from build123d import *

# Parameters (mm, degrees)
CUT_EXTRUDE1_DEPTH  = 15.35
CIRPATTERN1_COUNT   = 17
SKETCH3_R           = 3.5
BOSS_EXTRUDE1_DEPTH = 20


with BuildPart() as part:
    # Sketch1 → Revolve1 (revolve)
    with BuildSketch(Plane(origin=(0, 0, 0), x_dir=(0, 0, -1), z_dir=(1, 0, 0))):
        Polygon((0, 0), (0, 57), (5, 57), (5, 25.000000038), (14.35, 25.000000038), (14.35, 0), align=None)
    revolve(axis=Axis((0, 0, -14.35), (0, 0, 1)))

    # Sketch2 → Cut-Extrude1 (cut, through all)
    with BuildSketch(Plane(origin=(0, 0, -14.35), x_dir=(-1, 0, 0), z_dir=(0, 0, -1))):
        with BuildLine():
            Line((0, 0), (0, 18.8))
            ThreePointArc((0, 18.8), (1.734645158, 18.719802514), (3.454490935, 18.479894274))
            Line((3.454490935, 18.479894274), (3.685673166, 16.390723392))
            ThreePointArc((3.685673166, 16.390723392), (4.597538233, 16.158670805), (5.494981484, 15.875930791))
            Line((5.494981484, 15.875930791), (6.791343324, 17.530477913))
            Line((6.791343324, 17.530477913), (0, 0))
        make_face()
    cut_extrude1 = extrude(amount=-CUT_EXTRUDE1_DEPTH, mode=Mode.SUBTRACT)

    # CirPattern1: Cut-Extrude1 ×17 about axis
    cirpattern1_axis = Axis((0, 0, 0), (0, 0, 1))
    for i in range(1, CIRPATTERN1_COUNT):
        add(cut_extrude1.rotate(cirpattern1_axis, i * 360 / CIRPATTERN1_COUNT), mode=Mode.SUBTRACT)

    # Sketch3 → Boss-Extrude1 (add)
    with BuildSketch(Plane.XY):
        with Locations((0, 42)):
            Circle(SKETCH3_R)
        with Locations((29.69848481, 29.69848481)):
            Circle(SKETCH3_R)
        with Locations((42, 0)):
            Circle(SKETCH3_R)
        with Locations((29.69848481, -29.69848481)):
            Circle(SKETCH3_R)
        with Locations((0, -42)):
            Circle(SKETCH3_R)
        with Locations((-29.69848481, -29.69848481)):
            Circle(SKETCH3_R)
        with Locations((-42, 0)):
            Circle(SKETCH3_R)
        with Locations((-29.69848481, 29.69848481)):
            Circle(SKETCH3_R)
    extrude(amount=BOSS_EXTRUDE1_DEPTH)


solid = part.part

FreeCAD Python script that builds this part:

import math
import FreeCAD as App
import Part
import Sketcher
from FreeCAD import Vector


def add_polygon(sketch, points):
    """Adds a closed chain of lines whose ends are joined by coincident constraints."""
    first, n = sketch.GeometryCount, len(points)
    for a, b in zip(points, points[1:] + points[:1]):
        sketch.addGeometry(Part.LineSegment(App.Vector(*a, 0), App.Vector(*b, 0)), False)
    for i in range(n):
        sketch.addConstraint(Sketcher.Constraint("Coincident", first + i, 2, first + (i + 1) % n, 1))

doc = App.newDocument("Part")
body = doc.addObject("PartDesign::Body", "Body")

# Sketch on YZ plane
sketch1 = doc.addObject("Sketcher::SketchObject", "Sketch")
body.addObject(sketch1)
sketch1.AttachmentSupport = (doc.YZ_Plane, [""])
sketch1.MapMode = "FlatFace"
add_polygon(sketch1, [(57, 0), (0, 0), (0, -14.35), (25, -14.35), (25, -5), (57, -5)])  # lines 0-5
sketch1.addConstraint(Sketcher.Constraint("Horizontal", 0))
sketch1.addConstraint(Sketcher.Constraint("Vertical", 1))
sketch1.addConstraint(Sketcher.Constraint("Horizontal", 2))
sketch1.addConstraint(Sketcher.Constraint("Vertical", 3))
sketch1.addConstraint(Sketcher.Constraint("Horizontal", 4))
sketch1.addConstraint(Sketcher.Constraint("Vertical", 5))
sketch1.addConstraint(Sketcher.Constraint("Coincident", 0, 2, -1, 1))
sketch1.addConstraint(Sketcher.Constraint("DistanceX", 0, 2, 0, 1, 57.0))
sketch1.addConstraint(Sketcher.Constraint("DistanceX", 2, 1, 2, 2, 25.0))
sketch1.addConstraint(Sketcher.Constraint("DistanceY", 5, 1, 5, 2, 5.0))
sketch1.addConstraint(Sketcher.Constraint("DistanceY", 1, 2, 1, 1, 14.35))
revolution = doc.addObject("PartDesign::Revolution", "Revolution")
body.addObject(revolution)
revolution.Profile = sketch1
revolution.ReferenceAxis = (sketch1, ["V_Axis"])
revolution.Angle = 360

# Sketch on XY plane
sketch2 = doc.addObject("Sketcher::SketchObject", "Sketch001")
body.addObject(sketch2)
sketch2.AttachmentSupport = (doc.XY_Plane, [""])
sketch2.MapMode = "FlatFace"
sketch2.AttachmentOffset = App.Placement(Vector(0, 0, -14.35), App.Rotation())
sketch2.addGeometry(Part.LineSegment(Vector(0, 18.8, 0), Vector(0, 0, 0)), False)
sketch2.addGeometry(Part.LineSegment(Vector(0, 0, 0), Vector(-6.791343, 17.530478, 0)), False)
sketch2.addGeometry(Part.LineSegment(Vector(-6.791343, 17.530478, 0), Vector(-5.494981, 15.875931, 0)), False)
sketch2.addGeometry(Part.ArcOfCircle(Part.Circle(Vector(0, 0, 0), Vector(0, 0, 1), 16.8), math.radians(102.672932), math.radians(109.091774)), False)
sketch2.addGeometry(Part.LineSegment(Vector(-3.685673, 16.390723, 0), Vector(-3.454491, 18.479894, 0)), False)
sketch2.addGeometry(Part.ArcOfCircle(Part.Circle(Vector(0, 0, 0), Vector(0, 0, 1), 18.8), math.radians(90), math.radians(100.588235)), False)
sketch2.addConstraint(Sketcher.Constraint("Coincident", 0, 2, 1, 1))
sketch2.addConstraint(Sketcher.Constraint("Coincident", 1, 2, 2, 1))
sketch2.addConstraint(Sketcher.Constraint("Coincident", 2, 2, 3, 2))
sketch2.addConstraint(Sketcher.Constraint("Coincident", 3, 1, 4, 1))
sketch2.addConstraint(Sketcher.Constraint("Coincident", 4, 2, 5, 2))
sketch2.addConstraint(Sketcher.Constraint("Coincident", 5, 1, 0, 1))
sketch2.addConstraint(Sketcher.Constraint("Vertical", 0))
sketch2.addConstraint(Sketcher.Constraint("Coincident", 3, 3, -1, 1))
sketch2.addConstraint(Sketcher.Constraint("Coincident", 5, 3, -1, 1))
sketch2.addConstraint(Sketcher.Constraint("Coincident", 0, 2, -1, 1))
sketch2.addConstraint(Sketcher.Constraint("Equal", 2, 4))
sketch2.addConstraint(Sketcher.Constraint("Radius", 3, 16.8))
sketch2.addConstraint(Sketcher.Constraint("Radius", 5, 18.8))
sketch2.addConstraint(Sketcher.Constraint("Distance", 1, 18.8))
sketch2.addConstraint(Sketcher.Constraint("DistanceX", 2, 2, -1, 1, 5.494981))
sketch2.addConstraint(Sketcher.Constraint("DistanceX", 4, 2, -1, 1, 3.454491))
sketch2.addConstraint(Sketcher.Constraint("DistanceY", 3, 3, 1, 2, 17.530478))
pocket1 = doc.addObject("PartDesign::Pocket", "Pocket")
body.addObject(pocket1)
pocket1.Profile = sketch2
pocket1.Type = "ThroughAll"
pocket1.Reversed = True
doc.recompute()

polarpattern = doc.addObject("PartDesign::PolarPattern", "PolarPattern")
body.addObject(polarpattern)
polarpattern.Originals = [pocket1]
polarpattern.Axis = (doc.Z_Axis, [""])
polarpattern.Angle = 360
polarpattern.Occurrences = 17
body.Tip = polarpattern

# Sketch on XY plane
sketch3 = doc.addObject("Sketcher::SketchObject", "Sketch002")
body.addObject(sketch3)
sketch3.AttachmentSupport = (doc.XY_Plane, [""])
sketch3.MapMode = "FlatFace"
sketch3.addGeometry(Part.Circle(Vector(0, 42, 0), Vector(0, 0, 1), 3.5), False)
sketch3.addGeometry(Part.Circle(Vector(29.698485, 29.698485, 0), Vector(0, 0, 1), 3.5), False)
sketch3.addGeometry(Part.Circle(Vector(42, 0, 0), Vector(0, 0, 1), 3.5), False)
sketch3.addGeometry(Part.Circle(Vector(29.698485, -29.698485, 0), Vector(0, 0, 1), 3.5), False)
sketch3.addGeometry(Part.Circle(Vector(0, -42, 0), Vector(0, 0, 1), 3.5), False)
sketch3.addGeometry(Part.Circle(Vector(-29.698485, -29.698485, 0), Vector(0, 0, 1), 3.5), False)
sketch3.addGeometry(Part.Circle(Vector(-42, 0, 0), Vector(0, 0, 1), 3.5), False)
sketch3.addGeometry(Part.Circle(Vector(-29.698485, 29.698485, 0), Vector(0, 0, 1), 3.5), False)
sketch3.addConstraint(Sketcher.Constraint("Equal", 0, 1))
sketch3.addConstraint(Sketcher.Constraint("Equal", 1, 2))
sketch3.addConstraint(Sketcher.Constraint("Equal", 2, 3))
sketch3.addConstraint(Sketcher.Constraint("Equal", 3, 4))
sketch3.addConstraint(Sketcher.Constraint("Equal", 4, 5))
sketch3.addConstraint(Sketcher.Constraint("Equal", 5, 6))
sketch3.addConstraint(Sketcher.Constraint("Equal", 6, 7))
sketch3.addConstraint(Sketcher.Constraint("Symmetric", 0, 3, 4, 3, -1, 1))
sketch3.addConstraint(Sketcher.Constraint("Symmetric", 1, 3, 5, 3, -1, 1))
sketch3.addConstraint(Sketcher.Constraint("Symmetric", 2, 3, 6, 3, -1, 1))
sketch3.addConstraint(Sketcher.Constraint("Symmetric", 3, 3, 7, 3, -1, 1))
sketch3.addConstraint(Sketcher.Constraint("Symmetric", 3, 3, 5, 3, -2))
sketch3.addConstraint(Sketcher.Constraint("PointOnObject", 0, 3, -2))
sketch3.addConstraint(Sketcher.Constraint("PointOnObject", 2, 3, -1))
sketch3.addConstraint(Sketcher.Constraint("Diameter", 0, 7.0))
sketch3.addConstraint(Sketcher.Constraint("DistanceY", -1, 1, 0, 3, 42.0))
sketch3.addConstraint(Sketcher.Constraint("DistanceX", -1, 1, 2, 3, 42.0))
sketch3.addConstraint(Sketcher.Constraint("DistanceY", 3, 3, 1, 3, 59.39697))
sketch3.addConstraint(Sketcher.Constraint("DistanceX", 5, 3, 3, 3, 59.39697))
pad1 = doc.addObject("PartDesign::Pad", "Pad")
body.addObject(pad1)
pad1.Profile = sketch3
pad1.Length = 20

doc.recompute()
